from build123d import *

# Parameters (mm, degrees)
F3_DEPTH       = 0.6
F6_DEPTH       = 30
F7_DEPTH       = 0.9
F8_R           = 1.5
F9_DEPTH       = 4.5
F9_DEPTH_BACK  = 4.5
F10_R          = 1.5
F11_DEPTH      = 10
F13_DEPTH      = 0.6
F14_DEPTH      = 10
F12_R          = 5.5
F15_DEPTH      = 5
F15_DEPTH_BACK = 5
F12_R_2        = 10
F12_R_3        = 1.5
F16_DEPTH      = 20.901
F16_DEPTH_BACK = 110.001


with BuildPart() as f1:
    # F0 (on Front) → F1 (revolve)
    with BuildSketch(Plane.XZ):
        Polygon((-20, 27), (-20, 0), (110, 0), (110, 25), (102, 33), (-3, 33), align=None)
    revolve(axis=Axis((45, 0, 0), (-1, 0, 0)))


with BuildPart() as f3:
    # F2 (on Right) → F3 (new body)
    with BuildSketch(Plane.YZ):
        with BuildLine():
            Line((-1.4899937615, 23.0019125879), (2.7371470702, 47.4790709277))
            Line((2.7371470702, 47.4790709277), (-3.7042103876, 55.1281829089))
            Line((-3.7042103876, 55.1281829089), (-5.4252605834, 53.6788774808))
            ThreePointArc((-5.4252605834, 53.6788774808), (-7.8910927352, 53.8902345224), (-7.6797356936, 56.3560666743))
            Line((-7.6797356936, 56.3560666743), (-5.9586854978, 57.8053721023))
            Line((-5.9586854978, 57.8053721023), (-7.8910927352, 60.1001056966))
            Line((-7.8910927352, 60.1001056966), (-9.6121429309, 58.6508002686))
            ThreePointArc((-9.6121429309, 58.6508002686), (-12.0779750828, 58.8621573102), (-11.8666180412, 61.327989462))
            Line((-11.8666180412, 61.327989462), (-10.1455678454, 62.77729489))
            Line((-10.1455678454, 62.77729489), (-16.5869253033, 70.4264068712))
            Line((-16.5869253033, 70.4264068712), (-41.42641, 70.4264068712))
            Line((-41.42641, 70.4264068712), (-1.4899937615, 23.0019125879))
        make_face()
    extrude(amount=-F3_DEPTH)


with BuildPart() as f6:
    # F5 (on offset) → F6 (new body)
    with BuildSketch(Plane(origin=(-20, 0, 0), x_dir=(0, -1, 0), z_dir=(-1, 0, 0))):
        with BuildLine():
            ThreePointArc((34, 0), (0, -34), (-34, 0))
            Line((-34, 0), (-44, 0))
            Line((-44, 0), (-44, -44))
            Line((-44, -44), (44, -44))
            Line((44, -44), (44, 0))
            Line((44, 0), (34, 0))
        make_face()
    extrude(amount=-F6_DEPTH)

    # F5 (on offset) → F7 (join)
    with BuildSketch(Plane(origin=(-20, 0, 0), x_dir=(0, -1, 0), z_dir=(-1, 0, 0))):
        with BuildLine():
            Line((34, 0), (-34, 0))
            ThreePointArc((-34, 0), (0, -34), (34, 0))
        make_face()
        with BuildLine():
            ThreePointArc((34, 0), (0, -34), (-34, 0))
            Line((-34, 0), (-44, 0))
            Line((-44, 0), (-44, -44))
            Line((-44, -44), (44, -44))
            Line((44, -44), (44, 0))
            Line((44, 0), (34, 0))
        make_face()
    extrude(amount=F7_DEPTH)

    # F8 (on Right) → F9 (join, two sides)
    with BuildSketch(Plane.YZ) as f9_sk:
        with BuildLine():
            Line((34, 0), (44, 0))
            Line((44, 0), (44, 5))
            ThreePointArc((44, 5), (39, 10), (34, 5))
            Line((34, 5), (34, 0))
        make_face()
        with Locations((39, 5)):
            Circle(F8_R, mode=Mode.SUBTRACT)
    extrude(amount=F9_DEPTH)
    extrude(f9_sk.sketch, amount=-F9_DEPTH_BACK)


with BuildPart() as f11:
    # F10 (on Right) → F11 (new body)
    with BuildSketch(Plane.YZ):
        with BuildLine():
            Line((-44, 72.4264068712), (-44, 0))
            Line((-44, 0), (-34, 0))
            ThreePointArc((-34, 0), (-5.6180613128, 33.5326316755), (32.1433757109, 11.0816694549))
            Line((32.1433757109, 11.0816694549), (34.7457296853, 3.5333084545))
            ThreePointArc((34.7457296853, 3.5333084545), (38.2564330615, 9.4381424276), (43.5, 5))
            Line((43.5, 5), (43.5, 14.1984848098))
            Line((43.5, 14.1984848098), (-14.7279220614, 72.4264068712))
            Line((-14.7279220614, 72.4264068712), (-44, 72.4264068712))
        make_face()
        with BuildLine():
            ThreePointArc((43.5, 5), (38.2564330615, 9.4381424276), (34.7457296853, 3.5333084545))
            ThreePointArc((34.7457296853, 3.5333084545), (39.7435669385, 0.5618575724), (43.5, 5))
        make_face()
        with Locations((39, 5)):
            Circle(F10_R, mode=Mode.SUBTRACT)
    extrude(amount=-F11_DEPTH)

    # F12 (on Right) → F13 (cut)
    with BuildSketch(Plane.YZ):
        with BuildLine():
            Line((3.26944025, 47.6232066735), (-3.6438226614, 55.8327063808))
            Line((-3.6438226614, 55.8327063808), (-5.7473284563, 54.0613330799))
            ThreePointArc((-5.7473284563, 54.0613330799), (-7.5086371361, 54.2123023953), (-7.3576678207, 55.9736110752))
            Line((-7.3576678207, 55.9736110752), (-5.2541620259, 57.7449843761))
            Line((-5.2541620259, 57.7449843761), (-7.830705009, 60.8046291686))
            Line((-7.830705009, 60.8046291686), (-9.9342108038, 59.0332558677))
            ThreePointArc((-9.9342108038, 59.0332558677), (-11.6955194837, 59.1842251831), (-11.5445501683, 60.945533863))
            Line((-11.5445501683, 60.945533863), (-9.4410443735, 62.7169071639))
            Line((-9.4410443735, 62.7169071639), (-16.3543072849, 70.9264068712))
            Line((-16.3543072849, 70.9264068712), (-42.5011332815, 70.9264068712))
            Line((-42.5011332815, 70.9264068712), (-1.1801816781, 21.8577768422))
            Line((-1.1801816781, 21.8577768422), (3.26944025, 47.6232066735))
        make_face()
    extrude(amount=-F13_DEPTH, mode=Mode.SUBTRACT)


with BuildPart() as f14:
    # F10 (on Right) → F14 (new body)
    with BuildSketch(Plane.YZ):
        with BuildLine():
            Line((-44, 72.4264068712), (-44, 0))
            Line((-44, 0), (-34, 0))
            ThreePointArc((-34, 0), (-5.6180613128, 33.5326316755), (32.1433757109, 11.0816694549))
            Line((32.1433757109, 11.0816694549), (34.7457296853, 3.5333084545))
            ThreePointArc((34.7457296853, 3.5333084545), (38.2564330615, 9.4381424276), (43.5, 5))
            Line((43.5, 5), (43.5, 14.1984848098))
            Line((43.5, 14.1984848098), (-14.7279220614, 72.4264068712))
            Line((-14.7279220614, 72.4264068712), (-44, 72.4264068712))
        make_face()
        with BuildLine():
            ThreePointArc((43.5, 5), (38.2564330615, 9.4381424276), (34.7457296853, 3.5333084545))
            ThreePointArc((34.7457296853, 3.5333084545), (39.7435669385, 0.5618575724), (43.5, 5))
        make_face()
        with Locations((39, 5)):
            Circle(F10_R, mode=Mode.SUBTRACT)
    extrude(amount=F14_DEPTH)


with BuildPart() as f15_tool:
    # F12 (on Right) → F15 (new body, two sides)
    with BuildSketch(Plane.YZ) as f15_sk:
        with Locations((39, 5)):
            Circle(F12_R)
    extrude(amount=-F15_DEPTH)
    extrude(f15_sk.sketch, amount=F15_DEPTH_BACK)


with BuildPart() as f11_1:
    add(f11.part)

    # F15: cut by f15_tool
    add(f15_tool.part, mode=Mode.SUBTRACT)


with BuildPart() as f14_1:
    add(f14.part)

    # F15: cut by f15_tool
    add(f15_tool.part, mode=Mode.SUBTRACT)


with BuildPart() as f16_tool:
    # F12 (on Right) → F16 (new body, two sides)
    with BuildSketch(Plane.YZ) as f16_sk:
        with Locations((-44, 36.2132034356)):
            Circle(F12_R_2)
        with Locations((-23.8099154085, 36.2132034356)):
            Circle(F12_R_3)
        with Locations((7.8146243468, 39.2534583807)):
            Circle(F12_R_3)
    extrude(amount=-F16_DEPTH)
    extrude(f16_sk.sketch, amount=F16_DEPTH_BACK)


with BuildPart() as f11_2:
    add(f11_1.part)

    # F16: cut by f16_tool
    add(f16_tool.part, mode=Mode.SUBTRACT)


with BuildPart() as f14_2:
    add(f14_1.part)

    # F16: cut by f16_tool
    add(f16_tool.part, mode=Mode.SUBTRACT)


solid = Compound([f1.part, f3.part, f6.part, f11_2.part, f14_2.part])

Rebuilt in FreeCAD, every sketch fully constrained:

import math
import FreeCAD as App
import Part
import Sketcher
Q = App.Units.Quantity


def add_polygon(sketch, points):
    """Adds a closed chain of lines whose ends are joined by coincident constraints."""
    first, n = sketch.GeometryCount, len(points)
    for a, b in zip(points, points[1:] + points[:1]):
        sketch.addGeometry(Part.LineSegment(App.Vector(*a, 0), App.Vector(*b, 0)), False)
    for i in range(n):
        sketch.addConstraint(Sketcher.Constraint("Coincident", first + i, 2, first + (i + 1) % n, 1))

doc = App.newDocument("Part")
body = doc.addObject("PartDesign::Body", "Body")

sketch1 = body.newObject("Sketcher::SketchObject", "Sketch")
sketch1.AttachmentSupport = (doc.getObject("XZ_Plane"), [""])
sketch1.MapMode = "FlatFace"
add_polygon(sketch1, [(-20, 27), (-20, 0), (110, 0), (110, 25), (102, 33), (-3, 33)])
sketch1.addConstraint(Sketcher.Constraint("Vertical", 0))
sketch1.addConstraint(Sketcher.Constraint("Horizontal", 1))
sketch1.addConstraint(Sketcher.Constraint("Vertical", 2))
sketch1.addConstraint(Sketcher.Constraint("Horizontal", 4))
sketch1.addConstraint(Sketcher.Constraint("PointOnObject", 0, 2, -1))
sketch1.addConstraint(Sketcher.Constraint("DistanceX", 1, 1, 1, 2, 130.0))
sketch1.addConstraint(Sketcher.Constraint("DistanceX", 4, 2, 4, 1, 105.0))
sketch1.addConstraint(Sketcher.Constraint("DistanceY", 0, 2, 0, 1, 27.0))
sketch1.addConstraint(Sketcher.Constraint("DistanceY", 2, 1, 2, 2, 25.0))
sketch1.addConstraint(Sketcher.Constraint("Angle", 3, Q("135 deg")))
sketch1.addConstraint(Sketcher.Constraint("DistanceX", 0, 2, -1, 1, 20.0))
sketch1.addConstraint(Sketcher.Constraint("DistanceX", -1, 1, 3, 2, 102.0))
revolution = body.newObject("PartDesign::Revolution", "Revolution")
revolution.Profile = sketch1
revolution.ReferenceAxis = (sketch1, ["H_Axis"])
revolution.Angle = 360
body2 = doc.addObject("PartDesign::Body", "Body001")

sketch2 = body2.newObject("Sketcher::SketchObject", "Sketch001")
sketch2.AttachmentSupport = (doc.getObject("YZ_Plane001"), [""])
sketch2.MapMode = "FlatFace"
sketch2.addGeometry(Part.LineSegment(App.Vector(-1.5, 23, 0), App.Vector(2.7, 47.5, 0)), False)
sketch2.addGeometry(Part.LineSegment(App.Vector(2.7, 47.5, 0), App.Vector(-3.7, 55.1, 0)), False)
sketch2.addGeometry(Part.LineSegment(App.Vector(-3.7, 55.1, 0), App.Vector(-5.4, 53.7, 0)), False)
sketch2.addGeometry(Part.ArcOfCircle(Part.Circle(App.Vector(-6.6, 55, 0), App.Vector(0, 0, 1), 1.8), math.radians(130), math.radians(310)), False)
sketch2.addGeometry(Part.LineSegment(App.Vector(-7.7, 56.4, 0), App.Vector(-6, 57.8, 0)), False)
sketch2.addGeometry(Part.LineSegment(App.Vector(-6, 57.8, 0), App.Vector(-7.9, 60.1, 0)), False)
sketch2.addGeometry(Part.LineSegment(App.Vector(-7.9, 60.1, 0), App.Vector(-9.6, 58.7, 0)), False)
sketch2.addGeometry(Part.ArcOfCircle(Part.Circle(App.Vector(-10.7, 60, 0), App.Vector(0, 0, 1), 1.8), math.radians(130), math.radians(310)), False)
sketch2.addGeometry(Part.LineSegment(App.Vector(-11.9, 61.3, 0), App.Vector(-10.1, 62.8, 0)), False)
sketch2.addGeometry(Part.LineSegment(App.Vector(-10.1, 62.8, 0), App.Vector(-16.6, 70.4, 0)), False)
sketch2.addGeometry(Part.LineSegment(App.Vector(-16.6, 70.4, 0), App.Vector(-41.4, 70.4, 0)), False)
sketch2.addGeometry(Part.LineSegment(App.Vector(-41.4, 70.4, 0), App.Vector(-1.5, 23, 0)), False)
sketch2.addConstraint(Sketcher.Constraint("Coincident", 0, 2, 1, 1))
sketch2.addConstraint(Sketcher.Constraint("Coincident", 1, 2, 2, 1))
sketch2.addConstraint(Sketcher.Constraint("Tangent", 2, 2, 3, 2))
sketch2.addConstraint(Sketcher.Constraint("Tangent", 3, 1, 4, 1))
sketch2.addConstraint(Sketcher.Constraint("Coincident", 4, 2, 5, 1))
sketch2.addConstraint(Sketcher.Constraint("Coincident", 5, 2, 6, 1))
sketch2.addConstraint(Sketcher.Constraint("Tangent", 6, 2, 7, 2))
sketch2.addConstraint(Sketcher.Constraint("Tangent", 7, 1, 8, 1))
sketch2.addConstraint(Sketcher.Constraint("Coincident", 8, 2, 9, 1))
sketch2.addConstraint(Sketcher.Constraint("Coincident", 9, 2, 10, 1))
sketch2.addConstraint(Sketcher.Constraint("Coincident", 10, 2, 11, 1))
sketch2.addConstraint(Sketcher.Constraint("Coincident", 11, 2, 0, 1))
sketch2.addConstraint(Sketcher.Constraint("Horizontal", 10))
sketch2.addConstraint(Sketcher.Constraint("Equal", 3, 7))
sketch2.addConstraint(Sketcher.Constraint("Perpendicular", 1, 2))
sketch2.addConstraint(Sketcher.Constraint("Parallel", 2, 4))
sketch2.addConstraint(Sketcher.Constraint("Perpendicular", 4, 5))
sketch2.addConstraint(Sketcher.Constraint("Perpendicular", 5, 6))
sketch2.addConstraint(Sketcher.Constraint("Parallel", 6, 8))
sketch2.addConstraint(Sketcher.Constraint("Perpendicular", 8, 9))
sketch2.addConstraint(Sketcher.Constraint("Parallel", 9, 11))
sketch2.addConstraint(Sketcher.Constraint("Equal", 2, 4))
sketch2.addConstraint(Sketcher.Constraint("Equal", 4, 6))
sketch2.addConstraint(Sketcher.Constraint("Equal", 6, 8))
sketch2.addConstraint(Sketcher.Constraint("Equal", 1, 9))
sketch2.addConstraint(Sketcher.Constraint("Radius", 3, 1.75))
sketch2.addConstraint(Sketcher.Constraint("Distance", 1, 10.0))
sketch2.addConstraint(Sketcher.Constraint("Distance", 5, 3.0))
sketch2.addConstraint(Sketcher.Constraint("Distance", 11, 62.0))
sketch2.addConstraint(Sketcher.Constraint("Distance", 2, 2.25))
sketch2.addConstraint(Sketcher.Constraint("DistanceX", 3, 3, -1, 1, 6.552498))
sketch2.addConstraint(Sketcher.Constraint("DistanceY", -1, 1, 6, 2, 58.6508))
sketch2.addConstraint(Sketcher.Constraint("DistanceY", 0, 2, 3, 3, 7.538401))
sketch2.addConstraint(Sketcher.Constraint("DistanceX", 10, 2, 10, 1, 24.839485))
pad1 = body2.newObject("PartDesign::Pad", "Pad")
pad1.Profile = sketch2
pad1.Length = 0.6
pad1.Reversed = True
body3 = doc.addObject("PartDesign::Body", "Body002")

sketch3 = body3.newObject("Sketcher::SketchObject", "Sketch002")
sketch3.AttachmentSupport = (doc.getObject("YZ_Plane002"), [""])
sketch3.MapMode = "FlatFace"
sketch3.AttachmentOffset = App.Placement(App.Vector(0, 0, -20), App.Rotation())
sketch3.addGeometry(Part.ArcOfCircle(Part.Circle(App.Vector(0, 0, 0), App.Vector(0, 0, 1), 34), math.radians(180), math.radians(360)), False)
sketch3.addGeometry(Part.LineSegment(App.Vector(34, 0, 0), App.Vector(44, 0, 0)), False)
sketch3.addGeometry(Part.LineSegment(App.Vector(44, 0, 0), App.Vector(44, -44, 0)), False)
sketch3.addGeometry(Part.LineSegment(App.Vector(44, -44, 0), App.Vector(-44, -44, 0)), False)
sketch3.addGeometry(Part.LineSegment(App.Vector(-44, -44, 0), App.Vector(-44, 0, 0)), False)
sketch3.addGeometry(Part.LineSegment(App.Vector(-44, 0, 0), App.Vector(-34, 0, 0)), False)
sketch3.addConstraint(Sketcher.Constraint("Coincident", 0, 2, 1, 1))
sketch3.addConstraint(Sketcher.Constraint("Coincident", 1, 2, 2, 1))
sketch3.addConstraint(Sketcher.Constraint("Coincident", 2, 2, 3, 1))
sketch3.addConstraint(Sketcher.Constraint("Coincident", 3, 2, 4, 1))
sketch3.addConstraint(Sketcher.Constraint("Coincident", 4, 2, 5, 1))
sketch3.addConstraint(Sketcher.Constraint("Coincident", 5, 2, 0, 1))
sketch3.addConstraint(Sketcher.Constraint("Horizontal", 1))
sketch3.addConstraint(Sketcher.Constraint("Vertical", 2))
sketch3.addConstraint(Sketcher.Constraint("Horizontal", 3))
sketch3.addConstraint(Sketcher.Constraint("Vertical", 4))
sketch3.addConstraint(Sketcher.Constraint("Horizontal", 5))
sketch3.addConstraint(Sketcher.Constraint("Coincident", 0, 3, -1, 1))
sketch3.addConstraint(Sketcher.Constraint("Symmetric", 1, 2, 4, 2, -1, 1))
sketch3.addConstraint(Sketcher.Constraint("PointOnObject", 0, 2, -1))
sketch3.addConstraint(Sketcher.Constraint("Radius", 0, 34.0))
sketch3.addConstraint(Sketcher.Constraint("DistanceX", 1, 1, 1, 2, 10.0))
sketch3.addConstraint(Sketcher.Constraint("DistanceY", 2, 2, 2, 1, 44.0))
pad2 = body3.newObject("PartDesign::Pad", "Pad001")
pad2.Profile = sketch3
pad2.Length = 30

sketch4 = body3.newObject("Sketcher::SketchObject", "Sketch003")
sketch4.AttachmentSupport = (doc.getObject("YZ_Plane002"), [""])
sketch4.MapMode = "FlatFace"
sketch4.AttachmentOffset = App.Placement(App.Vector(0, 0, -20), App.Rotation())
add_polygon(sketch4, [(44, 0), (44, -44), (-44, -44), (-44, 0)])
sketch4.addConstraint(Sketcher.Constraint("Vertical", 0))
sketch4.addConstraint(Sketcher.Constraint("Horizontal", 1))
sketch4.addConstraint(Sketcher.Constraint("Vertical", 2))
sketch4.addConstraint(Sketcher.Constraint("Horizontal", 3))
sketch4.addConstraint(Sketcher.Constraint("Symmetric", 2, 2, 3, 2, -1, 1))
sketch4.addConstraint(Sketcher.Constraint("DistanceX", 1, 2, 1, 1, 88.0))
sketch4.addConstraint(Sketcher.Constraint("DistanceY", 0, 2, 0, 1, 44.0))
pad3 = body3.newObject("PartDesign::Pad", "Pad002")
pad3.Profile = sketch4
pad3.Length = 0.9
pad3.Reversed = True

sketch5 = body3.newObject("Sketcher::SketchObject", "Sketch004")
sketch5.AttachmentSupport = (doc.getObject("YZ_Plane002"), [""])
sketch5.MapMode = "FlatFace"
sketch5.addGeometry(Part.LineSegment(App.Vector(34, 0, 0), App.Vector(44, 0, 0)), False)
sketch5.addGeometry(Part.LineSegment(App.Vector(44, 0, 0), App.Vector(44, 5, 0)), False)
sketch5.addGeometry(Part.ArcOfCircle(Part.Circle(App.Vector(39, 5, 0), App.Vector(0, 0, 1), 5), math.radians(0), math.radians(180)), False)
sketch5.addGeometry(Part.LineSegment(App.Vector(34, 5, 0), App.Vector(34, 0, 0)), False)
sketch5.addGeometry(Part.Circle(App.Vector(39, 5, 0), App.Vector(0, 0, 1), 1.5), False)
sketch5.addConstraint(Sketcher.Constraint("Coincident", 0, 2, 1, 1))
sketch5.addConstraint(Sketcher.Constraint("Tangent", 1, 2, 2, 1))
sketch5.addConstraint(Sketcher.Constraint("Tangent", 2, 2, 3, 1))
sketch5.addConstraint(Sketcher.Constraint("Coincident", 3, 2, 0, 1))
sketch5.addConstraint(Sketcher.Constraint("Horizontal", 0))
sketch5.addConstraint(Sketcher.Constraint("Vertical", 1))
sketch5.addConstraint(Sketcher.Constraint("Vertical", 3))
sketch5.addConstraint(Sketcher.Constraint("Coincident", 4, 3, 2, 3))
sketch5.addConstraint(Sketcher.Constraint("PointOnObject", 0, 2, -1))
sketch5.addConstraint(Sketcher.Constraint("Diameter", 4, 3.0))
sketch5.addConstraint(Sketcher.Constraint("Radius", 2, 5.0))
sketch5.addConstraint(Sketcher.Constraint("DistanceY", 1, 1, 1, 2, 5.0))
sketch5.addConstraint(Sketcher.Constraint("DistanceX", -1, 1, 2, 3, 39.0))
pad4 = body3.newObject("PartDesign::Pad", "Pad003")
pad4.Profile = sketch5
pad4.Type = "TwoLengths"
pad4.Length = 4.5
pad4.Length2 = 4.5
body4 = doc.addObject("PartDesign::Body", "Body003")

sketch6 = body4.newObject("Sketcher::SketchObject", "Sketch005")
sketch6.AttachmentSupport = (doc.getObject("YZ_Plane003"), [""])
sketch6.MapMode = "FlatFace"
sketch6.addGeometry(Part.LineSegment(App.Vector(-44, 72.4, 0), App.Vector(-44, 0, 0)), False)
sketch6.addGeometry(Part.LineSegment(App.Vector(-44, 0, 0), App.Vector(-34, 0, 0)), False)
sketch6.addGeometry(Part.ArcOfCircle(Part.Circle(App.Vector(0, 0, 0), App.Vector(0, 0, 1), 34), math.radians(19), math.radians(180)), False)
sketch6.addGeometry(Part.LineSegment(App.Vector(32.1, 11.1, 0), App.Vector(34.7, 3.5, 0)), False)
sketch6.addGeometry(Part.ArcOfCircle(Part.Circle(App.Vector(39, 5, 0), App.Vector(0, 0, 1), 4.5), math.radians(-161), math.radians(0)), False)
sketch6.addGeometry(Part.LineSegment(App.Vector(43.5, 5, 0), App.Vector(43.5, 14.2, 0)), False)
sketch6.addGeometry(Part.LineSegment(App.Vector(43.5, 14.2, 0), App.Vector(-14.7, 72.4, 0)), False)
sketch6.addGeometry(Part.LineSegment(App.Vector(-14.7, 72.4, 0), App.Vector(-44, 72.4, 0)), False)
sketch6.addGeometry(Part.Circle(App.Vector(39, 5, 0), App.Vector(0, 0, 1), 1.5), False)
sketch6.addConstraint(Sketcher.Constraint("Coincident", 0, 2, 1, 1))
sketch6.addConstraint(Sketcher.Constraint("Coincident", 1, 2, 2, 2))
sketch6.addConstraint(Sketcher.Constraint("Tangent", 2, 1, 3, 1))
sketch6.addConstraint(Sketcher.Constraint("Tangent", 3, 2, 4, 1))
sketch6.addConstraint(Sketcher.Constraint("Tangent", 4, 2, 5, 1))
sketch6.addConstraint(Sketcher.Constraint("Coincident", 5, 2, 6, 1))
sketch6.addConstraint(Sketcher.Constraint("Coincident", 6, 2, 7, 1))
sketch6.addConstraint(Sketcher.Constraint("Coincident", 7, 2, 0, 1))
sketch6.addConstraint(Sketcher.Constraint("Vertical", 0))
sketch6.addConstraint(Sketcher.Constraint("Horizontal", 1))
sketch6.addConstraint(Sketcher.Constraint("Vertical", 5))
sketch6.addConstraint(Sketcher.Constraint("Horizontal", 7))
sketch6.addConstraint(Sketcher.Constraint("Coincident", 2, 3, -1, 1))
sketch6.addConstraint(Sketcher.Constraint("Coincident", 8, 3, 4, 3))
sketch6.addConstraint(Sketcher.Constraint("PointOnObject", 0, 2, -1))
sketch6.addConstraint(Sketcher.Constraint("Diameter", 8, 3.0))
sketch6.addConstraint(Sketcher.Constraint("Radius", 2, 34.0))
sketch6.addConstraint(Sketcher.Constraint("Radius", 4, 4.5))
sketch6.addConstraint(Sketcher.Constraint("DistanceX", 1, 1, 1, 2, 10.0))
sketch6.addConstraint(Sketcher.Constraint("Angle", 6, Q("135 deg")))
sketch6.addConstraint(Sketcher.Constraint("DistanceX", -1, 1, 4, 3, 39.0))
sketch6.addConstraint(Sketcher.Constraint("DistanceY", -1, 1, 4, 3, 5.0))
sketch6.addConstraint(Sketcher.Constraint("DistanceX", 7, 2, 7, 1, 29.272078))
sketch6.addConstraint(Sketcher.Constraint("DistanceY", 0, 2, 0, 1, 72.426407))
pad5 = body4.newObject("PartDesign::Pad", "Pad004")
pad5.Profile = sketch6
pad5.Length = 10
pad5.Reversed = True

sketch7 = body4.newObject("Sketcher::SketchObject", "Sketch006")
sketch7.AttachmentSupport = (doc.getObject("YZ_Plane003"), [""])
sketch7.MapMode = "FlatFace"
sketch7.addGeometry(Part.LineSegment(App.Vector(3.3, 47.6, 0), App.Vector(-3.6, 55.8, 0)), False)
sketch7.addGeometry(Part.LineSegment(App.Vector(-3.6, 55.8, 0), App.Vector(-5.7, 54.1, 0)), False)
sketch7.addGeometry(Part.ArcOfCircle(Part.Circle(App.Vector(-6.6, 55, 0), App.Vector(0, 0, 1), 1.2), math.radians(130), math.radians(310)), False)
sketch7.addGeometry(Part.LineSegment(App.Vector(-7.4, 56, 0), App.Vector(-5.3, 57.7, 0)), False)
sketch7.addGeometry(Part.LineSegment(App.Vector(-5.3, 57.7, 0), App.Vector(-7.8, 60.8, 0)), False)
sketch7.addGeometry(Part.LineSegment(App.Vector(-7.8, 60.8, 0), App.Vector(-9.9, 59, 0)), False)
sketch7.addGeometry(Part.ArcOfCircle(Part.Circle(App.Vector(-10.7, 60, 0), App.Vector(0, 0, 1), 1.2), math.radians(130), math.radians(310)), False)
sketch7.addGeometry(Part.LineSegment(App.Vector(-11.5, 60.9, 0), App.Vector(-9.4, 62.7, 0)), False)
sketch7.addGeometry(Part.LineSegment(App.Vector(-9.4, 62.7, 0), App.Vector(-16.4, 70.9, 0)), False)
sketch7.addGeometry(Part.LineSegment(App.Vector(-16.4, 70.9, 0), App.Vector(-42.5, 70.9, 0)), False)
sketch7.addGeometry(Part.LineSegment(App.Vector(-42.5, 70.9, 0), App.Vector(-1.2, 21.9, 0)), False)
sketch7.addGeometry(Part.LineSegment(App.Vector(-1.2, 21.9, 0), App.Vector(3.3, 47.6, 0)), False)
sketch7.addConstraint(Sketcher.Constraint("Coincident", 0, 2, 1, 1))
sketch7.addConstraint(Sketcher.Constraint("Tangent", 1, 2, 2, 2))
sketch7.addConstraint(Sketcher.Constraint("Tangent", 2, 1, 3, 1))
sketch7.addConstraint(Sketcher.Constraint("Coincident", 3, 2, 4, 1))
sketch7.addConstraint(Sketcher.Constraint("Coincident", 4, 2, 5, 1))
sketch7.addConstraint(Sketcher.Constraint("Tangent", 5, 2, 6, 2))
sketch7.addConstraint(Sketcher.Constraint("Tangent", 6, 1, 7, 1))
sketch7.addConstraint(Sketcher.Constraint("Coincident", 7, 2, 8, 1))
sketch7.addConstraint(Sketcher.Constraint("Coincident", 8, 2, 9, 1))
sketch7.addConstraint(Sketcher.Constraint("Coincident", 9, 2, 10, 1))
sketch7.addConstraint(Sketcher.Constraint("Coincident", 10, 2, 11, 1))
sketch7.addConstraint(Sketcher.Constraint("Coincident", 11, 2, 0, 1))
sketch7.addConstraint(Sketcher.Constraint("Horizontal", 9))
sketch7.addConstraint(Sketcher.Constraint("Equal", 2, 6))
sketch7.addConstraint(Sketcher.Constraint("Perpendicular", 0, 1))
sketch7.addConstraint(Sketcher.Constraint("Parallel", 1, 3))
sketch7.addConstraint(Sketcher.Constraint("Perpendicular", 3, 4))
sketch7.addConstraint(Sketcher.Constraint("Perpendicular", 4, 5))
sketch7.addConstraint(Sketcher.Constraint("Parallel", 5, 7))
sketch7.addConstraint(Sketcher.Constraint("Perpendicular", 7, 8))
sketch7.addConstraint(Sketcher.Constraint("Parallel", 8, 10))
sketch7.addConstraint(Sketcher.Constraint("Equal", 1, 3))
sketch7.addConstraint(Sketcher.Constraint("Equal", 3, 5))
sketch7.addConstraint(Sketcher.Constraint("Equal", 5, 7))
sketch7.addConstraint(Sketcher.Constraint("Equal", 0, 8))
sketch7.addConstraint(Sketcher.Constraint("Radius", 2, 1.25))
sketch7.addConstraint(Sketcher.Constraint("Distance", 4, 4.0))
sketch7.addConstraint(Sketcher.Constraint("Distance", 1, 2.75))
sketch7.addConstraint(Sketcher.Constraint("DistanceX", 2, 3, -1, 1, 6.552498))
sketch7.addConstraint(Sketcher.Constraint("DistanceY", 7, 2, 8, 2, 8.2095))
sketch7.addConstraint(Sketcher.Constraint("Distance", 0, 10.732618))
sketch7.addConstraint(Sketcher.Constraint("DistanceX", 9, 2, 9, 1, 26.146826))
sketch7.addConstraint(Sketcher.Constraint("DistanceY", -1, 1, 2, 1, 55.973611))
sketch7.addConstraint(Sketcher.Constraint("DistanceX", 10, 2, -1, 1, 1.180182))
pocket1 = body4.newObject("PartDesign::Pocket", "Pocket")
pocket1.Profile = sketch7
pocket1.Length = 0.6
body5 = doc.addObject("PartDesign::Body", "Body004")

sketch8 = body5.newObject("Sketcher::SketchObject", "Sketch007")
sketch8.AttachmentSupport = (doc.getObject("YZ_Plane004"), [""])
sketch8.MapMode = "FlatFace"
sketch8.addGeometry(Part.LineSegment(App.Vector(-44, 72.4, 0), App.Vector(-44, 0, 0)), False)
sketch8.addGeometry(Part.LineSegment(App.Vector(-44, 0, 0), App.Vector(-34, 0, 0)), False)
sketch8.addGeometry(Part.ArcOfCircle(Part.Circle(App.Vector(0, 0, 0), App.Vector(0, 0, 1), 34), math.radians(19), math.radians(180)), False)
sketch8.addGeometry(Part.LineSegment(App.Vector(32.1, 11.1, 0), App.Vector(34.7, 3.5, 0)), False)
sketch8.addGeometry(Part.ArcOfCircle(Part.Circle(App.Vector(39, 5, 0), App.Vector(0, 0, 1), 4.5), math.radians(-161), math.radians(0)), False)
sketch8.addGeometry(Part.LineSegment(App.Vector(43.5, 5, 0), App.Vector(43.5, 14.2, 0)), False)
sketch8.addGeometry(Part.LineSegment(App.Vector(43.5, 14.2, 0), App.Vector(-14.7, 72.4, 0)), False)
sketch8.addGeometry(Part.LineSegment(App.Vector(-14.7, 72.4, 0), App.Vector(-44, 72.4, 0)), False)
sketch8.addGeometry(Part.Circle(App.Vector(39, 5, 0), App.Vector(0, 0, 1), 1.5), False)
sketch8.addConstraint(Sketcher.Constraint("Coincident", 0, 2, 1, 1))
sketch8.addConstraint(Sketcher.Constraint("Coincident", 1, 2, 2, 2))
sketch8.addConstraint(Sketcher.Constraint("Tangent", 2, 1, 3, 1))
sketch8.addConstraint(Sketcher.Constraint("Tangent", 3, 2, 4, 1))
sketch8.addConstraint(Sketcher.Constraint("Tangent", 4, 2, 5, 1))
sketch8.addConstraint(Sketcher.Constraint("Coincident", 5, 2, 6, 1))
sketch8.addConstraint(Sketcher.Constraint("Coincident", 6, 2, 7, 1))
sketch8.addConstraint(Sketcher.Constraint("Coincident", 7, 2, 0, 1))
sketch8.addConstraint(Sketcher.Constraint("Vertical", 0))
sketch8.addConstraint(Sketcher.Constraint("Horizontal", 1))
sketch8.addConstraint(Sketcher.Constraint("Vertical", 5))
sketch8.addConstraint(Sketcher.Constraint("Horizontal", 7))
sketch8.addConstraint(Sketcher.Constraint("Coincident", 2, 3, -1, 1))
sketch8.addConstraint(Sketcher.Constraint("Coincident", 8, 3, 4, 3))
sketch8.addConstraint(Sketcher.Constraint("PointOnObject", 0, 2, -1))
sketch8.addConstraint(Sketcher.Constraint("Diameter", 8, 3.0))
sketch8.addConstraint(Sketcher.Constraint("Radius", 2, 34.0))
sketch8.addConstraint(Sketcher.Constraint("Radius", 4, 4.5))
sketch8.addConstraint(Sketcher.Constraint("DistanceX", 1, 1, 1, 2, 10.0))
sketch8.addConstraint(Sketcher.Constraint("Angle", 6, Q("135 deg")))
sketch8.addConstraint(Sketcher.Constraint("DistanceX", -1, 1, 4, 3, 39.0))
sketch8.addConstraint(Sketcher.Constraint("DistanceY", -1, 1, 4, 3, 5.0))
sketch8.addConstraint(Sketcher.Constraint("DistanceX", 7, 2, 7, 1, 29.272078))
sketch8.addConstraint(Sketcher.Constraint("DistanceY", 0, 2, 0, 1, 72.426407))
pad6 = body5.newObject("PartDesign::Pad", "Pad005")
pad6.Profile = sketch8
pad6.Length = 10
body6 = doc.addObject("PartDesign::Body", "Body005")

sketch9 = body6.newObject("Sketcher::SketchObject", "Sketch008")
sketch9.AttachmentSupport = (doc.getObject("YZ_Plane005"), [""])
sketch9.MapMode = "FlatFace"
sketch9.addGeometry(Part.Circle(App.Vector(39, 5, 0), App.Vector(0, 0, 1), 6), False)
sketch9.addConstraint(Sketcher.Constraint("Diameter", 0, 11.0))
sketch9.addConstraint(Sketcher.Constraint("DistanceX", -1, 1, 0, 3, 39.0))
sketch9.addConstraint(Sketcher.Constraint("DistanceY", -1, 1, 0, 3, 5.0))
pad7 = body6.newObject("PartDesign::Pad", "Pad006")
pad7.Profile = sketch9
pad7.Type = "TwoLengths"
pad7.Length = 5
pad7.Length2 = 5
pad7.Reversed = True
doc.recompute()

body7 = doc.addObject("PartDesign::Body", "Body006")
body7.BaseFeature = body6
boolean = body4.newObject("PartDesign::Boolean", "Boolean")
boolean.Type = "Cut"
boolean.addObjects([body7])
doc.recompute()

boolean2 = body5.newObject("PartDesign::Boolean", "Boolean001")
boolean2.Type = "Cut"
boolean2.addObjects([body6])
body8 = doc.addObject("PartDesign::Body", "Body007")
body8.AllowCompound = True

sketch10 = body8.newObject("Sketcher::SketchObject", "Sketch009")
sketch10.AttachmentSupport = (doc.getObject("YZ_Plane007"), [""])
sketch10.MapMode = "FlatFace"
sketch10.addGeometry(Part.Circle(App.Vector(-44, 36.2, 0), App.Vector(0, 0, 1), 10), False)
sketch10.addGeometry(Part.Circle(App.Vector(-23.8, 36.2, 0), App.Vector(0, 0, 1), 1.5), False)
sketch10.addGeometry(Part.Circle(App.Vector(7.8, 39.3, 0), App.Vector(0, 0, 1), 1.5), False)
sketch10.addConstraint(Sketcher.Constraint("Equal", 1, 2))
sketch10.addConstraint(Sketcher.Constraint("Horizontal", 0, 3, 1, 3))
sketch10.addConstraint(Sketcher.Constraint("Diameter", 0, 20.0))
sketch10.addConstraint(Sketcher.Constraint("Diameter", 1, 3.0))
sketch10.addConstraint(Sketcher.Constraint("DistanceX", 0, 3, -1, 1, 44.0))
sketch10.addConstraint(Sketcher.Constraint("DistanceY", -1, 1, 2, 3, 39.253458))
sketch10.addConstraint(Sketcher.Constraint("DistanceX", 1, 3, 2, 3, 31.62454))
sketch10.addConstraint(Sketcher.Constraint("DistanceY", -1, 1, 0, 3, 36.213203))
sketch10.addConstraint(Sketcher.Constraint("DistanceX", 1, 3, -1, 1, 23.809915))
pad8 = body8.newObject("PartDesign::Pad", "Pad007")
pad8.Profile = sketch10
pad8.Type = "TwoLengths"
pad8.Length = 20.901
pad8.Length2 = 110.001
pad8.Reversed = True
doc.recompute()

body9 = doc.addObject("PartDesign::Body", "Body008")
body9.BaseFeature = body8
boolean3 = body4.newObject("PartDesign::Boolean", "Boolean002")
boolean3.Type = "Cut"
boolean3.addObjects([body9])
doc.recompute()

boolean4 = body5.newObject("PartDesign::Boolean", "Boolean003")
boolean4.Type = "Cut"
boolean4.addObjects([body8])

doc.recompute()
